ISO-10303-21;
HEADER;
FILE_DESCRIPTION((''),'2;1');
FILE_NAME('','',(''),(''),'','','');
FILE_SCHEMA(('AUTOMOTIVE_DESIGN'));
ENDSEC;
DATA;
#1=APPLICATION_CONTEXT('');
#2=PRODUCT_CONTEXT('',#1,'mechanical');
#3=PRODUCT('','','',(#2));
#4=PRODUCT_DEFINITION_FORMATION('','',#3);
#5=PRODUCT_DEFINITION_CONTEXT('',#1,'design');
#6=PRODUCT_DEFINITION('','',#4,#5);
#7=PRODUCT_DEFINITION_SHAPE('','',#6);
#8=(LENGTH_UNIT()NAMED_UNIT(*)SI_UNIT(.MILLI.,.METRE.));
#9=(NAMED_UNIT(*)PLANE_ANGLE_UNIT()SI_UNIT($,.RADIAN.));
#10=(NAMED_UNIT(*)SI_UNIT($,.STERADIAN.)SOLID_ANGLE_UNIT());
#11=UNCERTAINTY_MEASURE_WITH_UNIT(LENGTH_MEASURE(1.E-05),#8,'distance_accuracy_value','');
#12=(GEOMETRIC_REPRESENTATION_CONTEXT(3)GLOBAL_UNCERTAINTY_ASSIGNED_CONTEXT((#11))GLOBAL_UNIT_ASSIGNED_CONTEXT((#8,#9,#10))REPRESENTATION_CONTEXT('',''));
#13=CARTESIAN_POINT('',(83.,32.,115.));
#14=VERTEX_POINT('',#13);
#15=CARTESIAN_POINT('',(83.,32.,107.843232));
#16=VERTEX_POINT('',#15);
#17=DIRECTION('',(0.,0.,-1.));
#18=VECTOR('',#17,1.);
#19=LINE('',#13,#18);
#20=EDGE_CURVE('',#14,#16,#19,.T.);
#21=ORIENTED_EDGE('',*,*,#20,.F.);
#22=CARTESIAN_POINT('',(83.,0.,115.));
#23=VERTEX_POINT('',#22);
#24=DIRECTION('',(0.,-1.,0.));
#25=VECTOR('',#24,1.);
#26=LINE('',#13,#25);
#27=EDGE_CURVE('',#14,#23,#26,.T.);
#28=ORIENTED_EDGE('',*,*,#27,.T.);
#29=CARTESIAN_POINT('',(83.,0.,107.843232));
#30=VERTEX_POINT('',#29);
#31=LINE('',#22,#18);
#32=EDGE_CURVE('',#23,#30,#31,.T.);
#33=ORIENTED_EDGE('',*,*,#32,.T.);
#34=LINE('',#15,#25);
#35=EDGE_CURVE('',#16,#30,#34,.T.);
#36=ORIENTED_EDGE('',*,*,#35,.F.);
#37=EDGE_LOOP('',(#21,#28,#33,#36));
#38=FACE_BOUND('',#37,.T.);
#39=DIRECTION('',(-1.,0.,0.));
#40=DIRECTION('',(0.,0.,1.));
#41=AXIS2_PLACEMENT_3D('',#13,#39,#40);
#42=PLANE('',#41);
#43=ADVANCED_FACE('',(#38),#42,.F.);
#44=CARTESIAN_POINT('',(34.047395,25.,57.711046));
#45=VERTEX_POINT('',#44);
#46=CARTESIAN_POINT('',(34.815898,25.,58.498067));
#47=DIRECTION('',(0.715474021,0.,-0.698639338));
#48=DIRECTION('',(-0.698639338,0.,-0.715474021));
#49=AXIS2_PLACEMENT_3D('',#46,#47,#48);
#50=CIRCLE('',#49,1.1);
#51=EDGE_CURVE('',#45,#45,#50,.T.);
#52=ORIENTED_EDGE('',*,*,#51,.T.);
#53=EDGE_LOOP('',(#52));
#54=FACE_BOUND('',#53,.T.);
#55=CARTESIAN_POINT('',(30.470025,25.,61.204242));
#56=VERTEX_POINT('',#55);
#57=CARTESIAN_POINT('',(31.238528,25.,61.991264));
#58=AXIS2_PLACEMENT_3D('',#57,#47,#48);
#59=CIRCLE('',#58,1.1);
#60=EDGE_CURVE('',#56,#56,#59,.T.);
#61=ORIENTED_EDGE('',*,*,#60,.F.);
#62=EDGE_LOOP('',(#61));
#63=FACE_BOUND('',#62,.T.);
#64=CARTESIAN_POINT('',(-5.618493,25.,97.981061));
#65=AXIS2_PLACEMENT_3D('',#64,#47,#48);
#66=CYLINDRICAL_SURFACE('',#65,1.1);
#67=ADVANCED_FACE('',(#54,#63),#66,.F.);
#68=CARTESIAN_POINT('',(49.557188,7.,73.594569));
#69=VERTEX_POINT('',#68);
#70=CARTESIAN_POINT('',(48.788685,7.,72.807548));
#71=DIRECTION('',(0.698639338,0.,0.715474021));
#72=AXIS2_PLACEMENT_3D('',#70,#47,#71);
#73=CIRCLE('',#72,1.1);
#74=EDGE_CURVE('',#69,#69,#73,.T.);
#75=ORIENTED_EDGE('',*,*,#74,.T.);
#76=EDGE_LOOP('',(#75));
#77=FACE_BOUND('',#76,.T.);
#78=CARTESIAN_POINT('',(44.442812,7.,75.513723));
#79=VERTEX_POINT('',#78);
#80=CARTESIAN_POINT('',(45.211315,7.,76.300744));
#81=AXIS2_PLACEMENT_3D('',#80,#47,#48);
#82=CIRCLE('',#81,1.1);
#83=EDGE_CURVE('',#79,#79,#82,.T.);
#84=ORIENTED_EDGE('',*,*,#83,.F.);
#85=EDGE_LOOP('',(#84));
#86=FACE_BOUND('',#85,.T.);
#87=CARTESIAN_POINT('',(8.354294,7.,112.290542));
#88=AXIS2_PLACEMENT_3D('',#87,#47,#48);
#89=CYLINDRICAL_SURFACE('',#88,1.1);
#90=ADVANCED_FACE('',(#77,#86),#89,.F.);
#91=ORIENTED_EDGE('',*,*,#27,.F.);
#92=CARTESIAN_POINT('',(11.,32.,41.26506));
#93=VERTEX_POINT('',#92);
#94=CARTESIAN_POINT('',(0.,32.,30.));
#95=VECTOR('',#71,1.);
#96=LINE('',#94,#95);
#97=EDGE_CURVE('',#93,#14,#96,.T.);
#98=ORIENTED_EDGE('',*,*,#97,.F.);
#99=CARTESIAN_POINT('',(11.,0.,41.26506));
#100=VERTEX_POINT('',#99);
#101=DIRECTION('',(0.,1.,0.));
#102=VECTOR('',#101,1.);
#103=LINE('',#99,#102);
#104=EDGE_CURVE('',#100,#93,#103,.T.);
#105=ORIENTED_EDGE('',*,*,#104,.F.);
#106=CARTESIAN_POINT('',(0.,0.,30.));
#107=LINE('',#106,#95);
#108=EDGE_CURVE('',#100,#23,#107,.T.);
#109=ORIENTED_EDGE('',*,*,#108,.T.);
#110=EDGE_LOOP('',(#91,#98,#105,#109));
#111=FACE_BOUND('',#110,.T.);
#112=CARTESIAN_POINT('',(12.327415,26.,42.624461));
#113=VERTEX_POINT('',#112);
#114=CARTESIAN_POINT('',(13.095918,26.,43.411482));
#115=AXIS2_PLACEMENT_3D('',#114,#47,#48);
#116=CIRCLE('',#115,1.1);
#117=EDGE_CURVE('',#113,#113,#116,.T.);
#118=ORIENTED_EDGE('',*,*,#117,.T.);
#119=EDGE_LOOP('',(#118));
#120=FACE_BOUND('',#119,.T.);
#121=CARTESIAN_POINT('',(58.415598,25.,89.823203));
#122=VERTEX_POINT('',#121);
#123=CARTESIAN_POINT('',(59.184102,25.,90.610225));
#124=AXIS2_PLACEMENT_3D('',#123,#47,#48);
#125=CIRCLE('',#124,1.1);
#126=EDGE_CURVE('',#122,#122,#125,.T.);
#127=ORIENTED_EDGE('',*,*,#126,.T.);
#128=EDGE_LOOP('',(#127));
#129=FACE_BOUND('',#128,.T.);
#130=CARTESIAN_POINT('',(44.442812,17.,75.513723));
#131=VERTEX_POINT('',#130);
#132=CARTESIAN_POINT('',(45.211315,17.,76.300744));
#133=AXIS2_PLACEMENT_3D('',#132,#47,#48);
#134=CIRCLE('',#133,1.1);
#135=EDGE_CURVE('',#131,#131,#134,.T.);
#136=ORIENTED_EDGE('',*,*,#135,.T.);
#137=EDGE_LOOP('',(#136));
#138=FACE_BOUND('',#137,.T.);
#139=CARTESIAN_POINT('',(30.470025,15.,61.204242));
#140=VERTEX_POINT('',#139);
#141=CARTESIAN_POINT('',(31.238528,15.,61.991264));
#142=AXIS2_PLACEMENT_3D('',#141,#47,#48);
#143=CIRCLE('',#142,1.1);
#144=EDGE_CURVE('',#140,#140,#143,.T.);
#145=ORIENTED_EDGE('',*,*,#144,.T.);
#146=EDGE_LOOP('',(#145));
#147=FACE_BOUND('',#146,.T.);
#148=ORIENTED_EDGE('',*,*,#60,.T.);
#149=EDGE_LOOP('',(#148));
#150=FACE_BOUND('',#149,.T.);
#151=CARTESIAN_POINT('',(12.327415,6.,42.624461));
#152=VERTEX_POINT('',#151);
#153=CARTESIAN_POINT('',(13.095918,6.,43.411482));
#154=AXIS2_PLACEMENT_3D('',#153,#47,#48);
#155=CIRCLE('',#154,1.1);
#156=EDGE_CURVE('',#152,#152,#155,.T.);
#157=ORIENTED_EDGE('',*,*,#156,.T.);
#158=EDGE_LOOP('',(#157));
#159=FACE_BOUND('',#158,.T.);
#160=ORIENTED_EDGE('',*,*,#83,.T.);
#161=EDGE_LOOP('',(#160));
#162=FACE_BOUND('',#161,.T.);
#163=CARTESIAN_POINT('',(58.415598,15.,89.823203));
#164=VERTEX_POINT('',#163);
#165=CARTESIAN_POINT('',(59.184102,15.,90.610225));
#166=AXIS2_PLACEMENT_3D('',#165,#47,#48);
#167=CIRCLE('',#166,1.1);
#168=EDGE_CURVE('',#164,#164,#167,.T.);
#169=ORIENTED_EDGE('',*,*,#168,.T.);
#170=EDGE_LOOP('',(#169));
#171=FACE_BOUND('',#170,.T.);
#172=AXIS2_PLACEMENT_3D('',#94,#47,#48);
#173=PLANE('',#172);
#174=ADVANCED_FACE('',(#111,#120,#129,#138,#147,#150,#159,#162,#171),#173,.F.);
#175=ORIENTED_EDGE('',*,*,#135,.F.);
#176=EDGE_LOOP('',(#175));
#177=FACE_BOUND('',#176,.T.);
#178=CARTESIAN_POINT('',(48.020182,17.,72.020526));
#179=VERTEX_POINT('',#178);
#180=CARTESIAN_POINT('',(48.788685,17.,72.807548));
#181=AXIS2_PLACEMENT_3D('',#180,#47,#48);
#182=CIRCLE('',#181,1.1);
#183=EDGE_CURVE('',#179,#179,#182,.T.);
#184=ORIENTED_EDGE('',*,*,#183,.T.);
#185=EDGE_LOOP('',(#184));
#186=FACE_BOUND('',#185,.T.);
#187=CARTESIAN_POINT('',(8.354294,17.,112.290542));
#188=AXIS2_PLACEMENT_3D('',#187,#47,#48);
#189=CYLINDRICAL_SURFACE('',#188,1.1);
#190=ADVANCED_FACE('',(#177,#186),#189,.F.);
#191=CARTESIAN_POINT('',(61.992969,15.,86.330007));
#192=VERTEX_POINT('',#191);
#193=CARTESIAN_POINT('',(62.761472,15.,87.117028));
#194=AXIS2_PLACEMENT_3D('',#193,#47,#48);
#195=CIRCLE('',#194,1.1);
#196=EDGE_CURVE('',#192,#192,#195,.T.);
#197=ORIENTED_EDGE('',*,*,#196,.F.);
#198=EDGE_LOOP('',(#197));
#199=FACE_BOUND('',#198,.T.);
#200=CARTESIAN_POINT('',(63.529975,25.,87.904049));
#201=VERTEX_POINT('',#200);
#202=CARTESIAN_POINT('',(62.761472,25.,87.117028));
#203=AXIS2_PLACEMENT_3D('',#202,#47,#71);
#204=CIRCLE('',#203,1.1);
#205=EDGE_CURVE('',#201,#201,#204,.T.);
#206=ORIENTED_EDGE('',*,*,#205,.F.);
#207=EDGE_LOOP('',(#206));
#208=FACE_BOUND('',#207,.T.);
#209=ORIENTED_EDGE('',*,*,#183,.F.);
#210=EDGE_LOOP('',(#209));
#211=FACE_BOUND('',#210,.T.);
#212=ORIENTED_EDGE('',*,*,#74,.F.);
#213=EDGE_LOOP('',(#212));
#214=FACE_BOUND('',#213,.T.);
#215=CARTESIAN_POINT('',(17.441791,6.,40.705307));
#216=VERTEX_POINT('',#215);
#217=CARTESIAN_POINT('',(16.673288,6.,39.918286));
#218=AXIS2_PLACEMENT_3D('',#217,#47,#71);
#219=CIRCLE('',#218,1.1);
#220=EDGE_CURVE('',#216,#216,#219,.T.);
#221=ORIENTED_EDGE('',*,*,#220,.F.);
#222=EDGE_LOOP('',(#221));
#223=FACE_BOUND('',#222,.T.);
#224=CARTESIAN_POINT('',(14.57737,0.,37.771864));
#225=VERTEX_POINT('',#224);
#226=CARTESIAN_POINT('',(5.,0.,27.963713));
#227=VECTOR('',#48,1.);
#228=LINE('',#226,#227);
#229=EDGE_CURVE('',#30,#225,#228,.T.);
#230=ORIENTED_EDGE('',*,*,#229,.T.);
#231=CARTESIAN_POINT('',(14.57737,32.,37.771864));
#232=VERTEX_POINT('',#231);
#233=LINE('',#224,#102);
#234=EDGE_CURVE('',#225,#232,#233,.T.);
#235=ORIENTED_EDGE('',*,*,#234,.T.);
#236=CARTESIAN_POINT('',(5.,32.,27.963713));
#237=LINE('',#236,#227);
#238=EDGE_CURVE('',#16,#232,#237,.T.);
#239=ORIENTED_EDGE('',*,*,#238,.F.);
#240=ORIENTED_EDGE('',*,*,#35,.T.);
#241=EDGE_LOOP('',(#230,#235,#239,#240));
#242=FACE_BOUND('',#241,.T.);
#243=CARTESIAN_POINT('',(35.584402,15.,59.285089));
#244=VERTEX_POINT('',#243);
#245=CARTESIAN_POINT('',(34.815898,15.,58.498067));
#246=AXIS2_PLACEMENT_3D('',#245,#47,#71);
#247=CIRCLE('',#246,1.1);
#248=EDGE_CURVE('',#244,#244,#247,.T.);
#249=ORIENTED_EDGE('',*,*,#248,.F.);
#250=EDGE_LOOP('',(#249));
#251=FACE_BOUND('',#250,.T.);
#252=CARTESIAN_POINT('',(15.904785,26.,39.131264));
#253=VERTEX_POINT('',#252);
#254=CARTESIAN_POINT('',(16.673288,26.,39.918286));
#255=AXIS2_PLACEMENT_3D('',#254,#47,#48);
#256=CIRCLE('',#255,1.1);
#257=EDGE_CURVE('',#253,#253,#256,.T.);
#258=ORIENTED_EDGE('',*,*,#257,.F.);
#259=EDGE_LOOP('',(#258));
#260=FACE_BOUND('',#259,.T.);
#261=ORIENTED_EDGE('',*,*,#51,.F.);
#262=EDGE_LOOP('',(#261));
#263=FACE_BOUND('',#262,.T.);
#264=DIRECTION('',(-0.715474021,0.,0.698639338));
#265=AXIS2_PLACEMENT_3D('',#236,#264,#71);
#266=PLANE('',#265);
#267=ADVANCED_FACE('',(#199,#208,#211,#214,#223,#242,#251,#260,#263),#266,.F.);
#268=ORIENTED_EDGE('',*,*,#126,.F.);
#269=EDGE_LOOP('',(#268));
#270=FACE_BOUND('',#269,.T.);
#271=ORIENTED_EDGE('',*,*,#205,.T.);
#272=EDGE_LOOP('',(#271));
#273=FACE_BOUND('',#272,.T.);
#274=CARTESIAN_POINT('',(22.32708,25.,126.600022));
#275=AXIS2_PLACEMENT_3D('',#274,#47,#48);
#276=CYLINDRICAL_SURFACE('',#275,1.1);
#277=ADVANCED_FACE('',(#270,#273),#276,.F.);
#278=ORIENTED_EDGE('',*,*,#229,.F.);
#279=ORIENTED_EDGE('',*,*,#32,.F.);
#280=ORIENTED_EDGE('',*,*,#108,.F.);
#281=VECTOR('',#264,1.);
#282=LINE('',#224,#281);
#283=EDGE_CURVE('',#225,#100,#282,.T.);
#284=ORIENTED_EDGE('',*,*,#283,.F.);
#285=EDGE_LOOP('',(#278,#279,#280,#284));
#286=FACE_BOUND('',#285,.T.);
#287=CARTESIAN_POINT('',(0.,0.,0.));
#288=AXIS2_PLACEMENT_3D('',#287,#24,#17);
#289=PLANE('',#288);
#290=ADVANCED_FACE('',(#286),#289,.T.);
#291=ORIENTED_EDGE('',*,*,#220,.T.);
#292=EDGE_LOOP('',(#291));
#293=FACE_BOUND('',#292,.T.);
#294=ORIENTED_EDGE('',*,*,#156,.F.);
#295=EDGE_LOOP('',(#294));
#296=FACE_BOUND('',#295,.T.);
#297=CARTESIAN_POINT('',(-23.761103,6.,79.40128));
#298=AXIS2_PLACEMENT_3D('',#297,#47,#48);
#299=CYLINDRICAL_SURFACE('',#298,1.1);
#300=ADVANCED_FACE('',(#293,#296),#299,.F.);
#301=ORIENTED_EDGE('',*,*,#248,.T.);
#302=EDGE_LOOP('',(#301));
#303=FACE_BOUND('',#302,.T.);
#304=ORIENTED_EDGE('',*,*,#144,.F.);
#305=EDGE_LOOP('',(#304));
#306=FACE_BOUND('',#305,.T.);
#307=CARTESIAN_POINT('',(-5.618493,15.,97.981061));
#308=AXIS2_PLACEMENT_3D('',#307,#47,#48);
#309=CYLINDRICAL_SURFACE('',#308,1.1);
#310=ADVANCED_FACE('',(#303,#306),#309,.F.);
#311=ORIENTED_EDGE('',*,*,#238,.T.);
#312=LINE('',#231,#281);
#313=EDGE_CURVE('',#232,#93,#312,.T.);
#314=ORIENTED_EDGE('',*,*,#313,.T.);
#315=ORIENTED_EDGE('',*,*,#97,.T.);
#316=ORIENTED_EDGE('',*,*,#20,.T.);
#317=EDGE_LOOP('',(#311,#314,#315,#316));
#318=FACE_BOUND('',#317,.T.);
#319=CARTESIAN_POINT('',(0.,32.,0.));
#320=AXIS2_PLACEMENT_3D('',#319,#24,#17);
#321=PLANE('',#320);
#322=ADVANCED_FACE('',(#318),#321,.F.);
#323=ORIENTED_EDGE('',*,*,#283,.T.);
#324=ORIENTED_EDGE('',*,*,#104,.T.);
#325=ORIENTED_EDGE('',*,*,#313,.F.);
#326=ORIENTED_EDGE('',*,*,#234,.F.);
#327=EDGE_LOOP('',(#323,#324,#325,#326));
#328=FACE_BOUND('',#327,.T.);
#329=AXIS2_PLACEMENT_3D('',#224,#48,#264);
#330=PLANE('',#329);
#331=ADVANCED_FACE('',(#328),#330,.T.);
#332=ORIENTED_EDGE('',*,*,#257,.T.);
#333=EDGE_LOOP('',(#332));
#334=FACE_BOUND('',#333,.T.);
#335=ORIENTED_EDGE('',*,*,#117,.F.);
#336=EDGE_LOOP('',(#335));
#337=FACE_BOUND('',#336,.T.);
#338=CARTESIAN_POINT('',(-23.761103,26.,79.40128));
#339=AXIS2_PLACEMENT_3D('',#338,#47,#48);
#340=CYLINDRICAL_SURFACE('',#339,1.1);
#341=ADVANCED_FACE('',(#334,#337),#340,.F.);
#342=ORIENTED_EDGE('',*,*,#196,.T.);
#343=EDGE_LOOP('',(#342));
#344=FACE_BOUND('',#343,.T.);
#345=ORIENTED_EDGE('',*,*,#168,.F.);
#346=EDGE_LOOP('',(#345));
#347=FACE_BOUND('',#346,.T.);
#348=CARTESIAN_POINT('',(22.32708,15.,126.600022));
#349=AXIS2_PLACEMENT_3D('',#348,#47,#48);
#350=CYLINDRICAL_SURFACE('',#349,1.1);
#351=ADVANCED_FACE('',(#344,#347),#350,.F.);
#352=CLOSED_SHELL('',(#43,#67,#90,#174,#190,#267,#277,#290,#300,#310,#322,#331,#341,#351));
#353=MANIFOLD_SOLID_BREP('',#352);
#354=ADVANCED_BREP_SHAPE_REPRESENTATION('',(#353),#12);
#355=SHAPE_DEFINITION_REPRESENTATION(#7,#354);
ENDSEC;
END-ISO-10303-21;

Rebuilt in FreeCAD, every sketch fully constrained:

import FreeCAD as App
import Part
import Sketcher
from FreeCAD import Vector


def edges_at(feature, points):
    """Names of the edges that pass closest to the given points."""
    edges = feature.Shape.Edges
    near = lambda p: min(range(len(edges)), key=lambda i: edges[i].distToShape(Part.Vertex(*p))[0])
    return sorted({f"Edge{near(p) + 1}" for p in points})


def add_polygon(sketch, points):
    """Adds a closed chain of lines whose ends are joined by coincident constraints."""
    first, n = sketch.GeometryCount, len(points)
    for a, b in zip(points, points[1:] + points[:1]):
        sketch.addGeometry(Part.LineSegment(App.Vector(*a, 0), App.Vector(*b, 0)), False)
    for i in range(n):
        sketch.addConstraint(Sketcher.Constraint("Coincident", first + i, 2, first + (i + 1) % n, 1))

doc = App.newDocument("Part")
body = doc.addObject("PartDesign::Body", "Body")

# Sketch on XZ plane
sketch1 = doc.addObject("Sketcher::SketchObject", "Sketch")
body.addObject(sketch1)
sketch1.AttachmentSupport = (doc.XZ_Plane, [""])
sketch1.MapMode = "FlatFace"
add_polygon(sketch1, [(0, -30), (0, 30), (83, 115), (83, 107.843232), (5, 27.963713), (5, -27.963713), (83, -107.843232), (83, -115)])  # lines 0-7
sketch1.addConstraint(Sketcher.Constraint("Vertical", 0))
sketch1.addConstraint(Sketcher.Constraint("Vertical", 2))
sketch1.addConstraint(Sketcher.Constraint("Vertical", 4))
sketch1.addConstraint(Sketcher.Constraint("Vertical", 6))
sketch1.addConstraint(Sketcher.Constraint("Symmetric", 0, 2, 7, 2, -1, 1))
sketch1.addConstraint(Sketcher.Constraint("Symmetric", 2, 2, 5, 2, -1))
sketch1.addConstraint(Sketcher.Constraint("Parallel", 1, 3))
sketch1.addConstraint(Sketcher.Constraint("Parallel", 5, 7))
sketch1.addConstraint(Sketcher.Constraint("Equal", 2, 6))
sketch1.addConstraint(Sketcher.Constraint("DistanceY", 0, 1, 0, 2, 60.0))
sketch1.addConstraint(Sketcher.Constraint("DistanceX", -1, 1, 1, 2, 83.0))
sketch1.addConstraint(Sketcher.Constraint("DistanceY", -1, 1, 1, 2, 115.0))
sketch1.addConstraint(Sketcher.Constraint("DistanceX", -1, 1, 3, 2, 5.0))
sketch1.addConstraint(Sketcher.Constraint("DistanceY", 2, 2, 2, 1, 7.156768))
pad1 = doc.addObject("PartDesign::Pad", "Pad")
body.addObject(pad1)
pad1.Profile = sketch1
pad1.Length = 32
pad1.Reversed = True
doc.recompute()

fillet = doc.addObject("PartDesign::Fillet", "Fillet")
body.addObject(fillet)
fillet.Base = (pad1, edges_at(pad1, [(0, 16, 30), (0, 16, -30)]))
fillet.Radius = 10

# Sketch on XZ plane
sketch2 = doc.addObject("Sketcher::SketchObject", "Sketch001")
body.addObject(sketch2)
sketch2.AttachmentSupport = (doc.XZ_Plane, [""])
sketch2.MapMode = "FlatFace"
sketch2.AttachmentOffset = App.Placement(Vector(0, 0, -32), App.Rotation())
add_polygon(sketch2, [(-49.419985, -124.957068), (-49.419985, 133.05101), (120.690425, 133.05101), (120.690425, -124.957068)])  # lines 0-3
add_polygon(sketch2, [(11, 41.26506), (14.57737, 37.771864), (86.57737, 111.506803), (83, 115)])  # lines 4-7
sketch2.addConstraint(Sketcher.Constraint("Vertical", 0))
sketch2.addConstraint(Sketcher.Constraint("Horizontal", 1))
sketch2.addConstraint(Sketcher.Constraint("Vertical", 2))
sketch2.addConstraint(Sketcher.Constraint("Horizontal", 3))
sketch2.addConstraint(Sketcher.Constraint("Perpendicular", 4, 5))
sketch2.addConstraint(Sketcher.Constraint("Perpendicular", 5, 6))
sketch2.addConstraint(Sketcher.Constraint("Perpendicular", 6, 7))
sketch2.addConstraint(Sketcher.Constraint("Distance", 4, 5.0))
sketch2.addConstraint(Sketcher.Constraint("DistanceX", -1, 1, 6, 2, 83.0))
sketch2.addConstraint(Sketcher.Constraint("DistanceY", -1, 1, 6, 2, 115.0))
sketch2.addConstraint(Sketcher.Constraint("DistanceX", -1, 1, 7, 2, 11.0))
sketch2.addConstraint(Sketcher.Constraint("DistanceX", 1, 1, 1, 2, 170.11041))
sketch2.addConstraint(Sketcher.Constraint("DistanceY", 0, 1, 0, 2, 258.008077))
sketch2.addConstraint(Sketcher.Constraint("DistanceY", -1, 1, 0, 2, 133.05101))
sketch2.addConstraint(Sketcher.Constraint("DistanceX", -1, 1, 4, 2, 14.57737))
sketch2.addConstraint(Sketcher.Constraint("DistanceX", 0, 2, -1, 1, 49.419985))
pocket1 = doc.addObject("PartDesign::Pocket", "Pocket")
body.addObject(pocket1)
pocket1.Profile = sketch2
pocket1.Type = "ThroughAll"
pocket1.Reversed = True

# Sketch on an angled plane
sketch3 = doc.addObject("Sketcher::SketchObject", "Sketch002")
body.addObject(sketch3)
sketch3.Placement = App.Placement(Vector(-11.418379, 0, 11.149711), App.Rotation(Vector(-0.698639338, 0, -0.715474021), Vector(0, 0.999999999, 0), Vector(0.715474021, 0, -0.698639338), "ZXY"))
sketch3.addGeometry(Part.Circle(Vector(-40.209111, 26, 0), Vector(0, 0, 1), 1.1), False)
sketch3.addGeometry(Part.Circle(Vector(-40.209111, 6, 0), Vector(0, 0, 1), 1.1), False)
sketch3.addConstraint(Sketcher.Constraint("Equal", 0, 1))
sketch3.addConstraint(Sketcher.Constraint("Vertical", 0, 3, 1, 3))
sketch3.addConstraint(Sketcher.Constraint("Diameter", 0, 2.2))
sketch3.addConstraint(Sketcher.Constraint("DistanceY", -1, 1, 0, 3, 26.0))
sketch3.addConstraint(Sketcher.Constraint("DistanceY", -1, 1, 1, 3, 6.0))
sketch3.addConstraint(Sketcher.Constraint("DistanceX", 0, 3, -1, 1, 40.209111))
pocket2 = doc.addObject("PartDesign::Pocket", "Pocket001")
body.addObject(pocket2)
pocket2.Profile = sketch3
pocket2.Type = "ThroughAll"

# Sketch on an angled plane
sketch4 = doc.addObject("Sketcher::SketchObject", "Sketch003")
body.addObject(sketch4)
sketch4.Placement = App.Placement(Vector(-11.418379, 0, 11.149711), App.Rotation(Vector(-0.698639338, 0, -0.715474021), Vector(0, 0.999999999, 0), Vector(0.715474021, 0, -0.698639338), "ZXY"))
sketch4.addGeometry(Part.Circle(Vector(-66.177603, 25, 0), Vector(0, 0, 1), 1.1), False)
sketch4.addGeometry(Part.Circle(Vector(-66.177603, 15, 0), Vector(0, 0, 1), 1.1), False)
sketch4.addGeometry(Part.Circle(Vector(-106.177603, 15, 0), Vector(0, 0, 1), 1.1), False)
sketch4.addGeometry(Part.Circle(Vector(-106.177603, 25, 0), Vector(0, 0, 1), 1.1), False)
sketch4.addGeometry(Part.Circle(Vector(-86.177603, 17, 0), Vector(0, 0, 1), 1.1), False)
sketch4.addGeometry(Part.Circle(Vector(-86.177603, 7, 0), Vector(0, 0, 1), 1.1), False)
sketch4.addConstraint(Sketcher.Constraint("Equal", 0, 1))
sketch4.addConstraint(Sketcher.Constraint("Equal", 1, 2))
sketch4.addConstraint(Sketcher.Constraint("Equal", 2, 3))
sketch4.addConstraint(Sketcher.Constraint("Equal", 3, 4))
sketch4.addConstraint(Sketcher.Constraint("Equal", 4, 5))
sketch4.addConstraint(Sketcher.Constraint("Horizontal", 1, 3, 2, 3))
sketch4.addConstraint(Sketcher.Constraint("Horizontal", 0, 3, 3, 3))
sketch4.addConstraint(Sketcher.Constraint("Vertical", 0, 3, 1, 3))
sketch4.addConstraint(Sketcher.Constraint("Vertical", 2, 3, 3, 3))
sketch4.addConstraint(Sketcher.Constraint("Vertical", 4, 3, 5, 3))
sketch4.addConstraint(Sketcher.Constraint("Diameter", 0, 2.2))
sketch4.addConstraint(Sketcher.Constraint("DistanceY", -1, 1, 0, 3, 25.0))
sketch4.addConstraint(Sketcher.Constraint("DistanceY", -1, 1, 1, 3, 15.0))
sketch4.addConstraint(Sketcher.Constraint("DistanceY", -1, 1, 4, 3, 17.0))
sketch4.addConstraint(Sketcher.Constraint("DistanceY", -1, 1, 5, 3, 7.0))
sketch4.addConstraint(Sketcher.Constraint("DistanceX", 2, 3, 1, 3, 40.0))
sketch4.addConstraint(Sketcher.Constraint("DistanceX", 4, 3, 1, 3, 20.0))
sketch4.addConstraint(Sketcher.Constraint("DistanceX", 0, 3, -1, 1, 66.177603))
pocket3 = doc.addObject("PartDesign::Pocket", "Pocket002")
body.addObject(pocket3)
pocket3.Profile = sketch4
pocket3.Type = "ThroughAll"

doc.recompute()
